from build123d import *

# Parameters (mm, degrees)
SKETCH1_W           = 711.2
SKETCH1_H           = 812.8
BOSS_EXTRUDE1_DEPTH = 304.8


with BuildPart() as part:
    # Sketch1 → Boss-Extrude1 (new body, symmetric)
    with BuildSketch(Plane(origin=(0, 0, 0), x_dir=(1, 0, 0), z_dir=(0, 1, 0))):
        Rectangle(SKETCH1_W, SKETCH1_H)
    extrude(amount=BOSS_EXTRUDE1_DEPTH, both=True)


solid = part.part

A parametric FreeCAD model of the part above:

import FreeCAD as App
import Part
import Sketcher
from FreeCAD import Vector
Q = App.Units.Quantity

doc = App.newDocument("Part")
params = doc.addObject("Spreadsheet::Sheet", "Params")
for row, (alias, value) in enumerate([
    ("sketch1_width", "28 in"),
    ("sketch1_height", "32 in"),
    ("pad1_length", "24 in"),
], start=1):
    params.set(f"A{row}", alias)
    params.set(f"B{row}", "=" + value)
    params.setAlias(f"B{row}", alias)

body = doc.addObject("PartDesign::Body", "Body")

sketch1 = doc.addObject("Sketcher::SketchObject", "Sketch")
body.addObject(sketch1)
sketch1.AttachmentSupport = (doc.XZ_Plane, [""])
sketch1.MapMode = "FlatFace"
sketch1.addGeometry([
    Part.LineSegment(Vector(-355.6, -406.4, 0), Vector(-355.6, 406.4, 0)),
    Part.LineSegment(Vector(-355.6, 406.4, 0), Vector(355.6, 406.4, 0)),
    Part.LineSegment(Vector(355.6, 406.4, 0), Vector(355.6, -406.4, 0)),
    Part.LineSegment(Vector(355.6, -406.4, 0), Vector(-355.6, -406.4, 0)),
], False)
sketch1.addConstraint([
    Sketcher.Constraint("Coincident", 0, 2, 1, 1),
    Sketcher.Constraint("Coincident", 1, 2, 2, 1),
    Sketcher.Constraint("Coincident", 2, 2, 3, 1),
    Sketcher.Constraint("Coincident", 3, 2, 0, 1),
    Sketcher.Constraint("Vertical", 0),
    Sketcher.Constraint("Horizontal", 1),
    Sketcher.Constraint("Vertical", 2),
    Sketcher.Constraint("Horizontal", 3),
    Sketcher.Constraint("Symmetric", 0, 2, 2, 2, -1, 1),
    Sketcher.Constraint("DistanceX", 1, 1, 1, 2, Q("28 in")),
    Sketcher.Constraint("DistanceY", 0, 1, 0, 2, Q("32 in")),
])
sketch1.setExpression("Constraints[9]", "Params.sketch1_width")
sketch1.setExpression("Constraints[10]", "Params.sketch1_height")
pad1 = doc.addObject("PartDesign::Pad", "Pad")
body.addObject(pad1)
pad1.Profile = sketch1
pad1.setExpression("Length", "Params.pad1_length")
pad1.Midplane = True

doc.recompute()
